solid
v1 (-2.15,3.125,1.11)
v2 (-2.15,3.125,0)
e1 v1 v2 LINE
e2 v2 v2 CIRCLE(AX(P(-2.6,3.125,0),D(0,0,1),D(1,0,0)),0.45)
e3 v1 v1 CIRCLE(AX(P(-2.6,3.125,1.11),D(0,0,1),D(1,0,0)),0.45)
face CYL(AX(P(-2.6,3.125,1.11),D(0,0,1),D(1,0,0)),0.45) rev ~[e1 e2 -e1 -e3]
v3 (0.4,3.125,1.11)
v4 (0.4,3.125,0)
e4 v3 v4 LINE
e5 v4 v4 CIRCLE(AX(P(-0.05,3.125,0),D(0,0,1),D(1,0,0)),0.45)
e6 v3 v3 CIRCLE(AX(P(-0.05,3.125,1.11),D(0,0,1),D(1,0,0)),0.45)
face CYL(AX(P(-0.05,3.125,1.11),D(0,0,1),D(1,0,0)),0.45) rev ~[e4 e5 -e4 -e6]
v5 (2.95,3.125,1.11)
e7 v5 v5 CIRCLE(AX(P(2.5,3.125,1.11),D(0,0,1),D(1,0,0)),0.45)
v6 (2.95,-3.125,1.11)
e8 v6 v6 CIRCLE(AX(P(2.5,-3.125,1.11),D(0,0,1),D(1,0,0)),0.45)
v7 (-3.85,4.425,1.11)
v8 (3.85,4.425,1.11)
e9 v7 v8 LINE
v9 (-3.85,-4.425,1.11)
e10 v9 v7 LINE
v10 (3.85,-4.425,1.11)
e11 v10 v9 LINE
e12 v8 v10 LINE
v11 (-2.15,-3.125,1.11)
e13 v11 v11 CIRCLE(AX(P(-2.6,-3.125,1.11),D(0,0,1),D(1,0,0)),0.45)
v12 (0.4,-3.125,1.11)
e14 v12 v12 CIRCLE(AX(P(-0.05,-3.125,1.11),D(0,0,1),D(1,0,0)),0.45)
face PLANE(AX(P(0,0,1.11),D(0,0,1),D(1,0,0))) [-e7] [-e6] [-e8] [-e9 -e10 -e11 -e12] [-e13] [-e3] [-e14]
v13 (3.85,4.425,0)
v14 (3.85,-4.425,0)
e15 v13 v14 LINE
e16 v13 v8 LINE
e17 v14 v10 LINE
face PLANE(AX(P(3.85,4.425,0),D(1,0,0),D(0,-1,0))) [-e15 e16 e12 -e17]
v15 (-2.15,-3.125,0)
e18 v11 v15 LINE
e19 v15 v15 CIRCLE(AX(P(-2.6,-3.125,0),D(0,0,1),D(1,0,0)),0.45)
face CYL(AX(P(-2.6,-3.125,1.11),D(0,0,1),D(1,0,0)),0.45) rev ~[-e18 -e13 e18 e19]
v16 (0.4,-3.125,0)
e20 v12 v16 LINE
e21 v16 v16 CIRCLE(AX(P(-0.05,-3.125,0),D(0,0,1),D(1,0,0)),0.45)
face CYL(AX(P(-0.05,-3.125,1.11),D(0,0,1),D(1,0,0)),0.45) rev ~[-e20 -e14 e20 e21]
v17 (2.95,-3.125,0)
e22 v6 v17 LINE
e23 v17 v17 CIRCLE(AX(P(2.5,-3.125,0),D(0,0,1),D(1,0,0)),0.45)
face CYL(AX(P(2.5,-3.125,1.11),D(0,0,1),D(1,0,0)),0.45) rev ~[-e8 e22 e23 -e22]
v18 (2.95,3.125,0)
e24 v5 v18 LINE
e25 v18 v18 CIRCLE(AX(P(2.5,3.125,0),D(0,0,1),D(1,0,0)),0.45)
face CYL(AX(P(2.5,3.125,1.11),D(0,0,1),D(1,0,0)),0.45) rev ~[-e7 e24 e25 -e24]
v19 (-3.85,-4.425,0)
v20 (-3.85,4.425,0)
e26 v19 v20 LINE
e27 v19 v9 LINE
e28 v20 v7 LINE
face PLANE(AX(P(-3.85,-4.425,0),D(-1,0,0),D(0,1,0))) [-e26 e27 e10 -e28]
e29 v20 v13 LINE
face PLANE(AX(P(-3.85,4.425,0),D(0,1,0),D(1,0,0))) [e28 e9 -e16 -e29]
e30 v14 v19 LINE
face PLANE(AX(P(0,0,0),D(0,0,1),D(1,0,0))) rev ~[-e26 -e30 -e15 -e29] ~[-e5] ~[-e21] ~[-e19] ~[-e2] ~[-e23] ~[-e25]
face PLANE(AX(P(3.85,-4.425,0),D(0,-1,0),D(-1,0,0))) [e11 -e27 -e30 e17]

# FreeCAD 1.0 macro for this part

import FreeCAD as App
import Part
import Sketcher
Q = App.Units.Quantity

doc = App.newDocument("Part")
body = doc.addObject("PartDesign::Body", "Body")

# Sketch on XY plane
sketch1 = doc.addObject("Sketcher::SketchObject", "Sketch")
body.addObject(sketch1)
sketch1.AttachmentSupport = (doc.XY_Plane, [""])
sketch1.MapMode = "FlatFace"
sketch1.addGeometry(Part.LineSegment(App.Vector(4, 4, 0), App.Vector(-4, 4, 0)), False)
sketch1.addGeometry(Part.LineSegment(App.Vector(-4, 4, 0), App.Vector(-4, -4, 0)), False)
sketch1.addGeometry(Part.LineSegment(App.Vector(-4, -4, 0), App.Vector(4, -4, 0)), False)
sketch1.addGeometry(Part.LineSegment(App.Vector(4, -4, 0), App.Vector(4, 4, 0)), False)
sketch1.addConstraint(Sketcher.Constraint("Coincident", 0, 2, 1, 1))
sketch1.addConstraint(Sketcher.Constraint("Coincident", 1, 2, 2, 1))
sketch1.addConstraint(Sketcher.Constraint("Coincident", 2, 2, 3, 1))
sketch1.addConstraint(Sketcher.Constraint("Coincident", 3, 2, 0, 1))
sketch1.addConstraint(Sketcher.Constraint("Horizontal", 0))
sketch1.addConstraint(Sketcher.Constraint("Vertical", 1))
sketch1.addConstraint(Sketcher.Constraint("Horizontal", 2))
sketch1.addConstraint(Sketcher.Constraint("Vertical", 3))
sketch1.addConstraint(Sketcher.Constraint("Symmetric", 0, 2, 2, 2, -1, 1))
sketch1.addConstraint(Sketcher.Constraint("DistanceX", 0, 2, 0, 1, Q("7.7 mm")))
sketch1.addConstraint(Sketcher.Constraint("DistanceY", 1, 2, 1, 1, Q("8.85 mm")))
pad1 = doc.addObject("PartDesign::Pad", "Pad")
body.addObject(pad1)
pad1.Profile = sketch1
pad1.Length = 1.11

# Sketch on XY plane
sketch2 = doc.addObject("Sketcher::SketchObject", "Sketch001")
body.addObject(sketch2)
sketch2.AttachmentSupport = (doc.XY_Plane, [""])
sketch2.MapMode = "FlatFace"
sketch2.AttachmentOffset = App.Placement(App.Vector(0, 0, 1.11), App.Rotation())
sketch2.addGeometry(Part.Circle(App.Vector(-2.6, 3.12, 0), App.Vector(0, 0, 1), 0.45), False)
sketch2.addGeometry(Part.Circle(App.Vector(-0.05, 3.12, 0), App.Vector(0, 0, 1), 0.45), False)
sketch2.addGeometry(Part.Circle(App.Vector(2.5, 3.12, 0), App.Vector(0, 0, 1), 0.45), False)
sketch2.addGeometry(Part.Circle(App.Vector(5.05, 3.12, 0), App.Vector(0, 0, 1), 0.45), False)
sketch2.addGeometry(Part.Circle(App.Vector(7.6, 3.12, 0), App.Vector(0, 0, 1), 0.45), False)
sketch2.addGeometry(Part.Circle(App.Vector(10.15, 3.12, 0), App.Vector(0, 0, 1), 0.45), False)
sketch2.addGeometry(Part.Circle(App.Vector(-2.6, -3.12, 0), App.Vector(0, 0, 1), 0.45), False)
sketch2.addGeometry(Part.Circle(App.Vector(-0.05, -3.12, 0), App.Vector(0, 0, 1), 0.45), False)
sketch2.addGeometry(Part.Circle(App.Vector(2.5, -3.12, 0), App.Vector(0, 0, 1), 0.45), False)
sketch2.addGeometry(Part.Circle(App.Vector(7.6, -3.12, 0), App.Vector(0, 0, 1), 0.45), False)
sketch2.addGeometry(Part.Circle(App.Vector(10.15, -3.12, 0), App.Vector(0, 0, 1), 0.45), False)
sketch2.addConstraint(Sketcher.Constraint("Equal", 0, 1))
sketch2.addConstraint(Sketcher.Constraint("Equal", 1, 2))
sketch2.addConstraint(Sketcher.Constraint("Equal", 2, 3))
sketch2.addConstraint(Sketcher.Constraint("Equal", 3, 4))
sketch2.addConstraint(Sketcher.Constraint("Equal", 4, 5))
sketch2.addConstraint(Sketcher.Constraint("Equal", 5, 6))
sketch2.addConstraint(Sketcher.Constraint("Equal", 6, 7))
sketch2.addConstraint(Sketcher.Constraint("Equal", 7, 8))
sketch2.addConstraint(Sketcher.Constraint("Equal", 8, 9))
sketch2.addConstraint(Sketcher.Constraint("Equal", 9, 10))
sketch2.addConstraint(Sketcher.Constraint("Symmetric", 0, 3, 6, 3, -1))
sketch2.addConstraint(Sketcher.Constraint("Symmetric", 1, 3, 7, 3, -1))
sketch2.addConstraint(Sketcher.Constraint("Symmetric", 2, 3, 8, 3, -1))
sketch2.addConstraint(Sketcher.Constraint("Symmetric", 4, 3, 9, 3, -1))
sketch2.addConstraint(Sketcher.Constraint("Symmetric", 5, 3, 10, 3, -1))
sketch2.addConstraint(Sketcher.Constraint("Horizontal", 0, 3, 1, 3))
sketch2.addConstraint(Sketcher.Constraint("Horizontal", 1, 3, 2, 3))
sketch2.addConstraint(Sketcher.Constraint("Horizontal", 2, 3, 3, 3))
sketch2.addConstraint(Sketcher.Constraint("Horizontal", 3, 3, 4, 3))
sketch2.addConstraint(Sketcher.Constraint("Horizontal", 4, 3, 5, 3))
sketch2.addConstraint(Sketcher.Constraint("Diameter", 0, Q("0.9 mm")))
sketch2.addConstraint(Sketcher.Constraint("DistanceX", 0, 3, 1, 3, Q("2.55 mm")))
sketch2.addConstraint(Sketcher.Constraint("DistanceX", 1, 3, 2, 3, Q("2.55 mm")))
sketch2.addConstraint(Sketcher.Constraint("DistanceX", 2, 3, 3, 3, Q("2.55 mm")))
sketch2.addConstraint(Sketcher.Constraint("DistanceX", 3, 3, 4, 3, Q("2.55 mm")))
sketch2.addConstraint(Sketcher.Constraint("DistanceX", 4, 3, 5, 3, Q("2.55 mm")))
sketch2.addConstraint(Sketcher.Constraint("DistanceX", 0, 3, -1, 1, Q("2.6 mm")))
sketch2.addConstraint(Sketcher.Constraint("DistanceY", 6, 3, 0, 3, Q("6.25 mm")))
pocket1 = doc.addObject("PartDesign::Pocket", "Pocket")
body.addObject(pocket1)
pocket1.Profile = sketch2
pocket1.Length = 1.11

doc.recompute()
